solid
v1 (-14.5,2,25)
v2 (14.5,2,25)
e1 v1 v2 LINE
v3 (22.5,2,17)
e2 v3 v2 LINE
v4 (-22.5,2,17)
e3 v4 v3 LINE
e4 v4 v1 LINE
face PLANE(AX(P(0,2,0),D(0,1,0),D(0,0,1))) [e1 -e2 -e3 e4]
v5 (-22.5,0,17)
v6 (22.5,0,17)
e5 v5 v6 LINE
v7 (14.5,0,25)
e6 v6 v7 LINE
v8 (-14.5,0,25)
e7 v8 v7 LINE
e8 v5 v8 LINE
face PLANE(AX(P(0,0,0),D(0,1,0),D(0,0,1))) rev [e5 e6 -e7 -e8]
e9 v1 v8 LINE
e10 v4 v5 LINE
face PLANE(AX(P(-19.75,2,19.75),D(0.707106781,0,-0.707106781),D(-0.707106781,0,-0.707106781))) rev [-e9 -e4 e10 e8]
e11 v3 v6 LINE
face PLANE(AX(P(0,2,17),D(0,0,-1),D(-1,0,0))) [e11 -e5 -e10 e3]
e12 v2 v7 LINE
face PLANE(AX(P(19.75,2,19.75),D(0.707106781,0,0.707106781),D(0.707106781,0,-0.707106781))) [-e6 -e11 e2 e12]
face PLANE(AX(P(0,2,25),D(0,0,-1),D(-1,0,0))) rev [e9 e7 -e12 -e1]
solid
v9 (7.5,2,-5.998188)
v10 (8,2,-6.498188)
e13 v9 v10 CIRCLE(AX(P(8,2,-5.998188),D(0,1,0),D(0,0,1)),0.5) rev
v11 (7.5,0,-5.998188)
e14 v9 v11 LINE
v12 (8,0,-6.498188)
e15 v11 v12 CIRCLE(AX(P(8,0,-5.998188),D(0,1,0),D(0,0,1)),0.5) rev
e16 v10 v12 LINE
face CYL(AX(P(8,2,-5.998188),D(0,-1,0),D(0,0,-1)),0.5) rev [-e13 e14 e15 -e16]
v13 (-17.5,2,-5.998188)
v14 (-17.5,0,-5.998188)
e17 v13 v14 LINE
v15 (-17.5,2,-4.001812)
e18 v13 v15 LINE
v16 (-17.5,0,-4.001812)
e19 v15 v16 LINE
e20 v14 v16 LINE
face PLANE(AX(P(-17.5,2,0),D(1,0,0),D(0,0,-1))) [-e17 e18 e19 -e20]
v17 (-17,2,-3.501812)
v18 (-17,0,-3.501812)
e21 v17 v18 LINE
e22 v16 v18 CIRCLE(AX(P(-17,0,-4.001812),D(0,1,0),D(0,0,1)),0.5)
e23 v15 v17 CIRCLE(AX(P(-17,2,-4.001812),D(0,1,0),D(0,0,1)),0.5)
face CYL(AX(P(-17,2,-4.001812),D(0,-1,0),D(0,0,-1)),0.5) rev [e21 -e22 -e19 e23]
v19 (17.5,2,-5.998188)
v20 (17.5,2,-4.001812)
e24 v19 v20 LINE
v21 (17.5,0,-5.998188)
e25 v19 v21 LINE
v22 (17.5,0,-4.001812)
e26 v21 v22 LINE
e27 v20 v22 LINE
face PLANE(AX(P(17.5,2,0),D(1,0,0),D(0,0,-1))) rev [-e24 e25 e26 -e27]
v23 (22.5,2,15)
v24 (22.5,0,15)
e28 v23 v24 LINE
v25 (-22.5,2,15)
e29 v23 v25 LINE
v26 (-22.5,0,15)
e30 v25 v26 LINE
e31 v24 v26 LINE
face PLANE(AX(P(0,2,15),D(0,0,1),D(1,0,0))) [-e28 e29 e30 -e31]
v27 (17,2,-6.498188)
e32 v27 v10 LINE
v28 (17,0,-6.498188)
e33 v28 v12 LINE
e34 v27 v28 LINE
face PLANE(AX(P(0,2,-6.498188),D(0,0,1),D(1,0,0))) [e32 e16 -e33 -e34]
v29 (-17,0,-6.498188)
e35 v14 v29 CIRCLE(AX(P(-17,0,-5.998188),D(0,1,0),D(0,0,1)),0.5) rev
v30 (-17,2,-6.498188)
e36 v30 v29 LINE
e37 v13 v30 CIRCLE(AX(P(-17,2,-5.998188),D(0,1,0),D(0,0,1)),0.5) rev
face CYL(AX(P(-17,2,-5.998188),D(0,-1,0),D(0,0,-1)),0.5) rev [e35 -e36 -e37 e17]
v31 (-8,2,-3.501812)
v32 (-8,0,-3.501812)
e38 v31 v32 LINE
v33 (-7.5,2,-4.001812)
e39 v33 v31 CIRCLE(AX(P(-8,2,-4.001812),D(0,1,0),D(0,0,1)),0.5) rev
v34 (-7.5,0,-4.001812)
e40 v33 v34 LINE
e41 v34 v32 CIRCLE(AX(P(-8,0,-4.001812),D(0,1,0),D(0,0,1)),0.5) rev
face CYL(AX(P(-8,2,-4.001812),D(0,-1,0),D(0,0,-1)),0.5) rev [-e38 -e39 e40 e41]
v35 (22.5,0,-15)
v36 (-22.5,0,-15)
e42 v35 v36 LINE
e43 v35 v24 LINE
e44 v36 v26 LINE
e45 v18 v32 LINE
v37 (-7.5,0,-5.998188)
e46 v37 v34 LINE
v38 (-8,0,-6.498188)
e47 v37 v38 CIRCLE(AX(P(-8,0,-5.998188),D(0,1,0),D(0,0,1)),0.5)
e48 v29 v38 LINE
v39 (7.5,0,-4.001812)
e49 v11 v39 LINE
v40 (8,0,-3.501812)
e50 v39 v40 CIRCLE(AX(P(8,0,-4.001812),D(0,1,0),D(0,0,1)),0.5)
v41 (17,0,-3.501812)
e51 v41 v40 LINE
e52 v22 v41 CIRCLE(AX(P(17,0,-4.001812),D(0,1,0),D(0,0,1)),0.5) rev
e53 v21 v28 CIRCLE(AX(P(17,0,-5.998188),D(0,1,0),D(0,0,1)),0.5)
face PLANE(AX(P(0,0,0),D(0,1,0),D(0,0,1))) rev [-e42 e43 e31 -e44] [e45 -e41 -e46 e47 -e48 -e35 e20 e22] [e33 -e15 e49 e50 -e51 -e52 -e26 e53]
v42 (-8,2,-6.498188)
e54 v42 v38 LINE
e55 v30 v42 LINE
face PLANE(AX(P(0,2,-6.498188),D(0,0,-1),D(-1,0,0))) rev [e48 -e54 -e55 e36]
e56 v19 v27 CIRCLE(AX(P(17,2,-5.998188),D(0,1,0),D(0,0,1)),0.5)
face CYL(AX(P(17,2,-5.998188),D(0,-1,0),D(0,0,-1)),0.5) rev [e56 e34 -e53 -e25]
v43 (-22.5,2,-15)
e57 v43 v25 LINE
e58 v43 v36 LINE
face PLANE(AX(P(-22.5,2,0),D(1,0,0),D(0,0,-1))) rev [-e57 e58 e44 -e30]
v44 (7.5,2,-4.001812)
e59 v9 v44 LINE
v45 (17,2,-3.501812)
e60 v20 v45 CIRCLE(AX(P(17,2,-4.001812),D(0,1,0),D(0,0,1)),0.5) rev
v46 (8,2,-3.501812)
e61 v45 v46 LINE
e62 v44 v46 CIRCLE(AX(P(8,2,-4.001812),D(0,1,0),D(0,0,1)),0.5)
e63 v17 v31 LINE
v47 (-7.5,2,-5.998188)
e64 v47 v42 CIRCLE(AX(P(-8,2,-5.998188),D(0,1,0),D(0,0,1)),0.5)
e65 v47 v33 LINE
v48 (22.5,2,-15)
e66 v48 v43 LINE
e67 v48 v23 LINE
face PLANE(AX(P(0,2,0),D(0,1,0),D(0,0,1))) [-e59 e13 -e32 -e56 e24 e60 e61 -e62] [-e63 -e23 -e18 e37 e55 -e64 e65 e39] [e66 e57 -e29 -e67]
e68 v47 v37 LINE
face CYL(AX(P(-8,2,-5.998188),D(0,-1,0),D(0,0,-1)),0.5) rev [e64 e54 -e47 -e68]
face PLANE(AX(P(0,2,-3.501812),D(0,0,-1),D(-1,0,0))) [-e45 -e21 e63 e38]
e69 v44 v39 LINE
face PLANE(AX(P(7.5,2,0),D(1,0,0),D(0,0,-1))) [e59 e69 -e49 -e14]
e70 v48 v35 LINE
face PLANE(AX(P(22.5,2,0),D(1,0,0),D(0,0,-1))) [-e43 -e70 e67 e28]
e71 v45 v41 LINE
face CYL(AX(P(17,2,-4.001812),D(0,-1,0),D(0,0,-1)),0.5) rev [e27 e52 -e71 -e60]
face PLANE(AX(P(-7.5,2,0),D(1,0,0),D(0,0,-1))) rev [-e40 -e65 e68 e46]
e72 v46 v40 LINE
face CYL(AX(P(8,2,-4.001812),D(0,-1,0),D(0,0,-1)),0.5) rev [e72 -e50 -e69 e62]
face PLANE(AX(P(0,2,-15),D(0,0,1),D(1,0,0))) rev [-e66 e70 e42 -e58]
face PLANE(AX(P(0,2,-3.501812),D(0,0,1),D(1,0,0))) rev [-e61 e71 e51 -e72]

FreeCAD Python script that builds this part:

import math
import FreeCAD as App
import Part
import Sketcher
from FreeCAD import Vector


def add_polygon(sketch, points):
    """Adds a closed chain of lines whose ends are joined by coincident constraints."""
    first, n = sketch.GeometryCount, len(points)
    for a, b in zip(points, points[1:] + points[:1]):
        sketch.addGeometry(Part.LineSegment(App.Vector(*a, 0), App.Vector(*b, 0)), False)
    for i in range(n):
        sketch.addConstraint(Sketcher.Constraint("Coincident", first + i, 2, first + (i + 1) % n, 1))

doc = App.newDocument("Part")
params = doc.addObject("Spreadsheet::Sheet", "Params")
for row, (alias, value) in enumerate([
    ("sketch1_radius", "0.5 mm"),
    ("sketch1_width", "45 mm"),
    ("sketch1_width2", "9 mm"),
    ("sketch1_height", "30 mm"),
    ("pad1_length", "2 mm"),
    ("sketch2_width", "45 mm"),
    ("sketch2_width2", "29 mm"),
    ("pad2_length", "2 mm"),
], start=1):
    params.set(f"A{row}", alias)
    params.set(f"B{row}", "=" + value)
    params.setAlias(f"B{row}", alias)

body = doc.addObject("PartDesign::Body", "Body")

# Sketch on XZ plane
sketch1 = body.newObject("Sketcher::SketchObject", "Sketch")
sketch1.AttachmentSupport = (doc.getObject("XZ_Plane"), [""])
sketch1.MapMode = "FlatFace"
add_polygon(sketch1, [(-22.5, -15), (-22.5, 15), (22.5, 15), (22.5, -15)])  # lines 0-3
sketch1.addGeometry(Part.ArcOfCircle(Part.Circle(Vector(-8, -6, 0), Vector(0, 0, 1), 0.5), math.radians(-90), math.radians(0)), False)  # 4
sketch1.addGeometry(Part.LineSegment(Vector(-7.5, -6, 0), Vector(-7.5, -4, 0)), False)  # 5
sketch1.addGeometry(Part.ArcOfCircle(Part.Circle(Vector(-8, -4, 0), Vector(0, 0, 1), 0.5), math.radians(0), math.radians(90)), False)  # 6
sketch1.addGeometry(Part.LineSegment(Vector(-8, -3.5, 0), Vector(-17, -3.5, 0)), False)  # 7
sketch1.addGeometry(Part.ArcOfCircle(Part.Circle(Vector(-17, -4, 0), Vector(0, 0, 1), 0.5), math.radians(90), math.radians(180)), False)  # 8
sketch1.addGeometry(Part.LineSegment(Vector(-17.5, -4, 0), Vector(-17.5, -6, 0)), False)  # 9
sketch1.addGeometry(Part.ArcOfCircle(Part.Circle(Vector(-17, -6, 0), Vector(0, 0, 1), 0.5), math.radians(180), math.radians(270)), False)  # 10
sketch1.addGeometry(Part.LineSegment(Vector(-17, -6.5, 0), Vector(-8, -6.5, 0)), False)  # 11
sketch1.addGeometry(Part.LineSegment(Vector(7.5, -4, 0), Vector(7.5, -6, 0)), False)  # 12
sketch1.addGeometry(Part.ArcOfCircle(Part.Circle(Vector(8, -6, 0), Vector(0, 0, 1), 0.5), math.radians(180), math.radians(270)), False)  # 13
sketch1.addGeometry(Part.LineSegment(Vector(8, -6.5, 0), Vector(17, -6.5, 0)), False)  # 14
sketch1.addGeometry(Part.ArcOfCircle(Part.Circle(Vector(17, -6, 0), Vector(0, 0, 1), 0.5), math.radians(-90), math.radians(0)), False)  # 15
sketch1.addGeometry(Part.LineSegment(Vector(17.5, -6, 0), Vector(17.5, -4, 0)), False)  # 16
sketch1.addGeometry(Part.ArcOfCircle(Part.Circle(Vector(17, -4, 0), Vector(0, 0, 1), 0.5), math.radians(0), math.radians(90)), False)  # 17
sketch1.addGeometry(Part.LineSegment(Vector(17, -3.5, 0), Vector(8, -3.5, 0)), False)  # 18
sketch1.addGeometry(Part.ArcOfCircle(Part.Circle(Vector(8, -4, 0), Vector(0, 0, 1), 0.5), math.radians(90), math.radians(180)), False)  # 19
sketch1.addConstraint([
    Sketcher.Constraint("Tangent", 4, 2, 5, 1),
    Sketcher.Constraint("Tangent", 5, 2, 6, 1),
    Sketcher.Constraint("Tangent", 6, 2, 7, 1),
    Sketcher.Constraint("Tangent", 7, 2, 8, 1),
    Sketcher.Constraint("Tangent", 8, 2, 9, 1),
    Sketcher.Constraint("Tangent", 9, 2, 10, 1),
    Sketcher.Constraint("Tangent", 10, 2, 11, 1),
    Sketcher.Constraint("Tangent", 11, 2, 4, 1),
    Sketcher.Constraint("Tangent", 12, 2, 13, 1),
    Sketcher.Constraint("Tangent", 13, 2, 14, 1),
    Sketcher.Constraint("Tangent", 14, 2, 15, 1),
    Sketcher.Constraint("Tangent", 15, 2, 16, 1),
    Sketcher.Constraint("Tangent", 16, 2, 17, 1),
    Sketcher.Constraint("Tangent", 17, 2, 18, 1),
    Sketcher.Constraint("Tangent", 18, 2, 19, 1),
    Sketcher.Constraint("Tangent", 19, 2, 12, 1),
    Sketcher.Constraint("Vertical", 0),
    Sketcher.Constraint("Horizontal", 1),
    Sketcher.Constraint("Vertical", 2),
    Sketcher.Constraint("Horizontal", 3),
    Sketcher.Constraint("Vertical", 5),
    Sketcher.Constraint("Horizontal", 7),
    Sketcher.Constraint("Vertical", 9),
    Sketcher.Constraint("Horizontal", 11),
    Sketcher.Constraint("Vertical", 12),
    Sketcher.Constraint("Horizontal", 14),
    Sketcher.Constraint("Vertical", 16),
    Sketcher.Constraint("Horizontal", 18),
    Sketcher.Constraint("Equal", 4, 6),
    Sketcher.Constraint("Equal", 6, 8),
    Sketcher.Constraint("Equal", 8, 10),
    Sketcher.Constraint("Equal", 10, 13),
    Sketcher.Constraint("Equal", 13, 15),
    Sketcher.Constraint("Equal", 15, 17),
    Sketcher.Constraint("Equal", 17, 19),
    Sketcher.Constraint("Symmetric", 0, 2, 2, 2, -1, 1),
    Sketcher.Constraint("Symmetric", 4, 3, 13, 3, -2),
    Sketcher.Constraint("Symmetric", 8, 3, 17, 3, -2),
    Sketcher.Constraint("Radius", 4, 0.5),
    Sketcher.Constraint("DistanceX", 1, 1, 1, 2, 45.0),
    Sketcher.Constraint("DistanceX", 7, 2, 7, 1, 9.0),
    Sketcher.Constraint("DistanceY", 0, 1, 0, 2, 30.0),
    Sketcher.Constraint("DistanceX", 4, 3, -1, 1, 8.0),
    Sketcher.Constraint("DistanceY", 5, 1, 5, 2, 1.996375),
    Sketcher.Constraint("DistanceY", 4, 3, -1, 1, 5.998188),
])
sketch1.setExpression("Constraints[42]", "Params.sketch1_radius")
sketch1.setExpression("Constraints[43]", "Params.sketch1_width")
sketch1.setExpression("Constraints[44]", "Params.sketch1_width2")
sketch1.setExpression("Constraints[45]", "Params.sketch1_height")
pad1 = body.newObject("PartDesign::Pad", "Pad")
pad1.Profile = sketch1
pad1.setExpression("Length", "Params.pad1_length")
pad1.Reversed = True
body2 = doc.addObject("PartDesign::Body", "Body001")

# Sketch on XZ plane
sketch2 = body2.newObject("Sketcher::SketchObject", "Sketch001")
sketch2.AttachmentSupport = (doc.getObject("XZ_Plane001"), [""])
sketch2.MapMode = "FlatFace"
add_polygon(sketch2, [(14, 25), (22, 17), (-22, 17), (-14, 25)])  # lines 0-3
sketch2.addConstraint([
    Sketcher.Constraint("Horizontal", 1),
    Sketcher.Constraint("Horizontal", 3),
    Sketcher.Constraint("Perpendicular", 0, 2),
    Sketcher.Constraint("Equal", 0, 2),
    Sketcher.Constraint("DistanceX", 1, 2, 1, 1, 45.0),
    Sketcher.Constraint("DistanceX", 3, 1, 3, 2, 29.0),
    Sketcher.Constraint("DistanceY", -1, 1, 0, 2, 17.0),
    Sketcher.Constraint("DistanceX", -1, 1, 0, 2, 22.5),
])
sketch2.setExpression("Constraints[8]", "Params.sketch2_width")
sketch2.setExpression("Constraints[9]", "Params.sketch2_width2")
pad2 = body2.newObject("PartDesign::Pad", "Pad001")
pad2.Profile = sketch2
pad2.setExpression("Length", "Params.pad2_length")
pad2.Reversed = True

doc.recompute()
